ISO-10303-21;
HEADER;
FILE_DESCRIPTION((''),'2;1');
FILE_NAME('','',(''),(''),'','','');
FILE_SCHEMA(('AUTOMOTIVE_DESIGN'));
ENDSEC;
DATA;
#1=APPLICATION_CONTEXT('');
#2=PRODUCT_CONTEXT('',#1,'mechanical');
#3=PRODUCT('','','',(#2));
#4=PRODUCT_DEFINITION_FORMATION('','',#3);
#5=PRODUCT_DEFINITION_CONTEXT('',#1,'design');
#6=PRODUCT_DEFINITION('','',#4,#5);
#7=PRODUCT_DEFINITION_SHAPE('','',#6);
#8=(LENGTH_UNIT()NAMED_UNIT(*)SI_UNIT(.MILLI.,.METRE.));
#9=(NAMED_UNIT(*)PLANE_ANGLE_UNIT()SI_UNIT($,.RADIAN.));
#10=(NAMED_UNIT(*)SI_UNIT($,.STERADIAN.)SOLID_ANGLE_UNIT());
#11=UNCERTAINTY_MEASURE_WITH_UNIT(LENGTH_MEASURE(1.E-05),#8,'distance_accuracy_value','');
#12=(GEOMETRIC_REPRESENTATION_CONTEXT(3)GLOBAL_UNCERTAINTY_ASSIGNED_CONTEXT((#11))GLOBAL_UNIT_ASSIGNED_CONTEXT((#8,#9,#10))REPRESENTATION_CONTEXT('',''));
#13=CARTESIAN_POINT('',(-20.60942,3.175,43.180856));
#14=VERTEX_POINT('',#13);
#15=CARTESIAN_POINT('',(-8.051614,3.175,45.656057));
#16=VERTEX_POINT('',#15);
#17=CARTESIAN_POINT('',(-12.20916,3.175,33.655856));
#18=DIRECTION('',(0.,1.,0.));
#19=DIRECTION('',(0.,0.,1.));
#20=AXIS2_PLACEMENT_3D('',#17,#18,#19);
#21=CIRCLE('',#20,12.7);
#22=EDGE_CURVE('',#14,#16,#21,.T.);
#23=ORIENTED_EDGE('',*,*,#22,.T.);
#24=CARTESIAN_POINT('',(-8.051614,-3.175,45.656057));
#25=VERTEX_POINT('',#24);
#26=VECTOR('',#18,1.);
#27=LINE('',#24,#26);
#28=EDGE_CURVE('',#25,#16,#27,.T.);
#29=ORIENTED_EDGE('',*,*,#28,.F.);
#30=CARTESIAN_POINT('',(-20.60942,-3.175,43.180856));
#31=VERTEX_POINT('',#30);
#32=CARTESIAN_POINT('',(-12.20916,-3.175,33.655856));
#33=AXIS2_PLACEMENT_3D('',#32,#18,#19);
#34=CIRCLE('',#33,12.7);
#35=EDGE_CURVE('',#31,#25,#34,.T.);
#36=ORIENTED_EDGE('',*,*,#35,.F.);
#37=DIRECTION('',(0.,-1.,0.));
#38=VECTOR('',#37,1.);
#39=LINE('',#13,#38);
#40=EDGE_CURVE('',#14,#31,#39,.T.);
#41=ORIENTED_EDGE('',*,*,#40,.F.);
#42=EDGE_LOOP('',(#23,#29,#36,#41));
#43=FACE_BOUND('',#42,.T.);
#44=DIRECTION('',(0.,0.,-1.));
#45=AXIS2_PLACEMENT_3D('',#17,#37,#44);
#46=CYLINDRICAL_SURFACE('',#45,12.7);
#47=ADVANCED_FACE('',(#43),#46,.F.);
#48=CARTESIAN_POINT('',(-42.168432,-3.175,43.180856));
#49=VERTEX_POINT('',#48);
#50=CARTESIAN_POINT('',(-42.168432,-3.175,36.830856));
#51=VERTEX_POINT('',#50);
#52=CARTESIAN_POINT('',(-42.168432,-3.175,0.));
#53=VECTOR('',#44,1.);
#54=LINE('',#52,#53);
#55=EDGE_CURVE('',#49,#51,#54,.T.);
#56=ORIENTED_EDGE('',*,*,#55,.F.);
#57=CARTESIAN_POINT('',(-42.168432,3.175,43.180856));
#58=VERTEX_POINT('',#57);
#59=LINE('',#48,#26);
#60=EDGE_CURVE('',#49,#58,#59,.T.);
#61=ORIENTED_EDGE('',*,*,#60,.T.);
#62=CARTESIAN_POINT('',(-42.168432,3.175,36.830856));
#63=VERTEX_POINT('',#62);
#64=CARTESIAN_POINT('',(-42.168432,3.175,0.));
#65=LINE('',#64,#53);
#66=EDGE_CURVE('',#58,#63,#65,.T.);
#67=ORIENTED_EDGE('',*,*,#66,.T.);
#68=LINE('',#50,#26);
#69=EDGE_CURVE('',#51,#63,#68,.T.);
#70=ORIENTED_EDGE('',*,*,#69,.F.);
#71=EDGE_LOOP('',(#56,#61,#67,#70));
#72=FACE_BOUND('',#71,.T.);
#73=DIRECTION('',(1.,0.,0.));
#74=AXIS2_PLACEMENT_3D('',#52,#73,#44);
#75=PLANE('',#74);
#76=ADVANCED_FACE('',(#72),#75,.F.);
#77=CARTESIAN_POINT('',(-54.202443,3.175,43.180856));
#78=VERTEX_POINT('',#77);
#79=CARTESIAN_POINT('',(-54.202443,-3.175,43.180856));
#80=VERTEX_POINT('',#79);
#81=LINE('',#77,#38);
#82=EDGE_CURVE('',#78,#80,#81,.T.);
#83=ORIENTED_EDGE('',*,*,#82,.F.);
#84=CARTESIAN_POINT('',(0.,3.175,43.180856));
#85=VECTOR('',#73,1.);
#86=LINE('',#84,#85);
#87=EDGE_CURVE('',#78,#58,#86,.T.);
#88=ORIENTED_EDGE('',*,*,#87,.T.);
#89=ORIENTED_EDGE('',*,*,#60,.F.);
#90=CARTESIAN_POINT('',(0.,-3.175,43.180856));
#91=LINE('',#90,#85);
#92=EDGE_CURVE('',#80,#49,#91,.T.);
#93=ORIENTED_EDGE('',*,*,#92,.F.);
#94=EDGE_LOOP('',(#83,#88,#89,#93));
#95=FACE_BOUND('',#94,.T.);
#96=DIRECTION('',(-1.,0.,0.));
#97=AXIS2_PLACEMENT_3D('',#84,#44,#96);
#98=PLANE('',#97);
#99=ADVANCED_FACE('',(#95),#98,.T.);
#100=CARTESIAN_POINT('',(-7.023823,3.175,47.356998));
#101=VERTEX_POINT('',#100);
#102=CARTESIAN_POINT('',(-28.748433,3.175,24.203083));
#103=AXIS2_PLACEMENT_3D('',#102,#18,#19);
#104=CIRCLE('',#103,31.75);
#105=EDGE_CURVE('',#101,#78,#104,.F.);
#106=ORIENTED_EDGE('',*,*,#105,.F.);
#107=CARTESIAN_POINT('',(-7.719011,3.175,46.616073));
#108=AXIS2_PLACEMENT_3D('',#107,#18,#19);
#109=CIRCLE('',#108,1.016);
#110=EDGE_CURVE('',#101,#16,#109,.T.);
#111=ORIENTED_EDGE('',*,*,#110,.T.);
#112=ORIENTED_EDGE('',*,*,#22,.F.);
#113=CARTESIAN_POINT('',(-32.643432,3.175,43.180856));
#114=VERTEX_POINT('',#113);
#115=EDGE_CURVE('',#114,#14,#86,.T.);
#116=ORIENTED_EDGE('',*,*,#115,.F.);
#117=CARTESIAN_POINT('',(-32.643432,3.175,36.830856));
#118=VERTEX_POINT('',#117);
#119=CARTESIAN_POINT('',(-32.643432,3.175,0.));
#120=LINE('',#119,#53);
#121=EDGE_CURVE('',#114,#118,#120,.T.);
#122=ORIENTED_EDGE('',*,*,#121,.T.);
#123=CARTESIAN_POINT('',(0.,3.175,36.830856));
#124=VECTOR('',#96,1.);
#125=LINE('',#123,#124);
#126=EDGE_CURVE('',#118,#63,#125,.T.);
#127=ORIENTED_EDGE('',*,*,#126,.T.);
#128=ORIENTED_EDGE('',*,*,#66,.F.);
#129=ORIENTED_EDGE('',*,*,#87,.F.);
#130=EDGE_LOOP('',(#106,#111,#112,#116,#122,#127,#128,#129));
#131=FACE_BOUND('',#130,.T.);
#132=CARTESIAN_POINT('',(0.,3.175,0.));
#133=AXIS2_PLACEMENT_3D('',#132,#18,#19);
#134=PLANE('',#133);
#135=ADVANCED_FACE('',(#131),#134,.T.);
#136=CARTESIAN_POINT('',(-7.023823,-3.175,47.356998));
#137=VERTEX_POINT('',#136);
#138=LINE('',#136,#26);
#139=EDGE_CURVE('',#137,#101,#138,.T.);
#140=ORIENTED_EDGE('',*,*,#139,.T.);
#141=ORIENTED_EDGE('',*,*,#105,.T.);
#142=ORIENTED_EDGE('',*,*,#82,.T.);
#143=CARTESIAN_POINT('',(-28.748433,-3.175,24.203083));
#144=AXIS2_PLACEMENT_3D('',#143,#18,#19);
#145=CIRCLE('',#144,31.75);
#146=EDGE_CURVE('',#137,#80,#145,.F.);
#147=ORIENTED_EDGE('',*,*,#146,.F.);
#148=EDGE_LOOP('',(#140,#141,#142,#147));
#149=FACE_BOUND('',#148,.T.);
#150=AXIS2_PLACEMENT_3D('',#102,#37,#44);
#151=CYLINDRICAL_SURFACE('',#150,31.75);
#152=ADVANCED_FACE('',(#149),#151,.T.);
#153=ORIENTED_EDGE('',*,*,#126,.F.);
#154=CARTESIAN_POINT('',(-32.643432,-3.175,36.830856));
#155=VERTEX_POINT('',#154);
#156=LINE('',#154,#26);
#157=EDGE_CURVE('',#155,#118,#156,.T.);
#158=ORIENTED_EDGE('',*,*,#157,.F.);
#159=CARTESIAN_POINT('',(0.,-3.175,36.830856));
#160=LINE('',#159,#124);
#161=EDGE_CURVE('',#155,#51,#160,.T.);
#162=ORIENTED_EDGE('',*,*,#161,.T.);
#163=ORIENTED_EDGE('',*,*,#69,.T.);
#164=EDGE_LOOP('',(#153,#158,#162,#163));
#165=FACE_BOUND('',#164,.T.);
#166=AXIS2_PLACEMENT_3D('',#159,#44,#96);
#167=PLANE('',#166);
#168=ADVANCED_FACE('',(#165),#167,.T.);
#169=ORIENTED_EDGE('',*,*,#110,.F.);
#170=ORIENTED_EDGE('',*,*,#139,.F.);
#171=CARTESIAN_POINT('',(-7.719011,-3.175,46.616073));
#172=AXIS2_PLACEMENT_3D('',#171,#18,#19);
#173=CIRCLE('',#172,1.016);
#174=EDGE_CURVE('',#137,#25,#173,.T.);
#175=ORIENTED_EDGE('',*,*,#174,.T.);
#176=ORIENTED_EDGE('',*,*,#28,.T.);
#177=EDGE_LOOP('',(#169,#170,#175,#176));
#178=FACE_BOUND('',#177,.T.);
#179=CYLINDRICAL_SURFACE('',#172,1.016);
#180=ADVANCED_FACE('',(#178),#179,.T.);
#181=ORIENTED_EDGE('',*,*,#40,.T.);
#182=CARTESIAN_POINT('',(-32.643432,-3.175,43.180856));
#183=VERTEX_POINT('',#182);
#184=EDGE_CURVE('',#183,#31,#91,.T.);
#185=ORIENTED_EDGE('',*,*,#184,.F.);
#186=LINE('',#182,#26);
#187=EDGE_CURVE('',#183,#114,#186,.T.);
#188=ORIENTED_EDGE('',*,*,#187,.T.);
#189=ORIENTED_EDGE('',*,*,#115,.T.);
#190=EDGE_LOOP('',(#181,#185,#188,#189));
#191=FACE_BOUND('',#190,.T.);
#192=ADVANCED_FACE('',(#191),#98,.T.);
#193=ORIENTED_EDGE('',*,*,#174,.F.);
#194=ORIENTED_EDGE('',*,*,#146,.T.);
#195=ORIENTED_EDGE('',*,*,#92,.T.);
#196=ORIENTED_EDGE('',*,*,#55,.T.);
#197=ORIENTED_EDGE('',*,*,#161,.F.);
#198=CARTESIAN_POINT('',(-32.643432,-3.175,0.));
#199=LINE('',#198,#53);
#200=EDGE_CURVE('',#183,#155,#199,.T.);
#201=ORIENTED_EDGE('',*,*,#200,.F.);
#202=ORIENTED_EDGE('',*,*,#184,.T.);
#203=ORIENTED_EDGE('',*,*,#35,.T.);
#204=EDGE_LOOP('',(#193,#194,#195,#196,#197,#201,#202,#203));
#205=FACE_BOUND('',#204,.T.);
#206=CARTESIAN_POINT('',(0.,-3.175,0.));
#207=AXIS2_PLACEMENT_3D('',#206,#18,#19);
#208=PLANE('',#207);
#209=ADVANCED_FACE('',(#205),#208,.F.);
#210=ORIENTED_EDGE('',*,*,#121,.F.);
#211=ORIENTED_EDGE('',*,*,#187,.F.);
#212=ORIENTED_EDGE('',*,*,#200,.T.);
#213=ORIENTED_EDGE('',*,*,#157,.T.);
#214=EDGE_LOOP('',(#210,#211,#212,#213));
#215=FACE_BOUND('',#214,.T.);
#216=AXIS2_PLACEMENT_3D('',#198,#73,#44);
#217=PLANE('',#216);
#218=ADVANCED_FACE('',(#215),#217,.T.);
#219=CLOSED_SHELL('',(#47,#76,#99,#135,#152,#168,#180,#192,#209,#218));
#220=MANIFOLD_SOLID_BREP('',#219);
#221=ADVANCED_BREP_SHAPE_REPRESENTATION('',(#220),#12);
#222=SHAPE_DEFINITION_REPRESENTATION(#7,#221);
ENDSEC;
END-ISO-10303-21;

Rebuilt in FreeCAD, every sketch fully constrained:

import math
import FreeCAD as App
import Part
import Sketcher
from FreeCAD import Vector
Q = App.Units.Quantity

doc = App.newDocument("Part")
body = doc.addObject("PartDesign::Body", "Body")

sketch1 = body.newObject("Sketcher::SketchObject", "Sketch")
sketch1.AttachmentSupport = (doc.getObject("XZ_Plane"), [""])
sketch1.MapMode = "FlatFace"
sketch1.addGeometry(Part.ArcOfCircle(Part.Circle(Vector(-29, 24, 0), Vector(0, 0, 1), 32), math.radians(30), math.radians(143)), False)
sketch1.addGeometry(Part.ArcOfCircle(Part.Circle(Vector(-12, 34, 0), Vector(0, 0, 1), 13), math.radians(30), math.radians(131)), False)
sketch1.addGeometry(Part.LineSegment(Vector(-21, 43, 0), Vector(-54, 43, 0)), False)
sketch1.addConstraint(Sketcher.Constraint("Tangent", 0, 1, 1, 1))
sketch1.addConstraint(Sketcher.Constraint("Coincident", 1, 2, 2, 1))
sketch1.addConstraint(Sketcher.Constraint("Coincident", 2, 2, 0, 2))
sketch1.addConstraint(Sketcher.Constraint("Horizontal", 2))
sketch1.addConstraint(Sketcher.Constraint("Radius", 1, Q("0.5 in")))
sketch1.addConstraint(Sketcher.Constraint("Radius", 0, Q("1.25 in")))
sketch1.addConstraint(Sketcher.Constraint("DistanceY", 1, 3, 1, 2, Q("0.375 in")))
sketch1.addConstraint(Sketcher.Constraint("DistanceX", 2, 2, 2, 1, Q("33.593023 mm")))
sketch1.addConstraint(Sketcher.Constraint("DistanceX", 1, 3, -1, 1, Q("12.20916 mm")))
sketch1.addConstraint(Sketcher.Constraint("DistanceY", -1, 1, 0, 3, Q("24.203083 mm")))
pad1 = body.newObject("PartDesign::Pad", "Pad")
pad1.Profile = sketch1
pad1.Length = Q("0.25 in")
pad1.Midplane = True

sketch2 = body.newObject("Sketcher::SketchObject", "Sketch001")
sketch2.AttachmentSupport = (doc.getObject("XZ_Plane"), [""])
sketch2.MapMode = "FlatFace"
sketch2.AttachmentOffset = App.Placement(Vector(0, 0, -0.125 * 25.4), App.Rotation())
sketch2.addGeometry(Part.LineSegment(Vector(-42, 37, 0), Vector(-42, 43, 0)), False)
sketch2.addGeometry(Part.LineSegment(Vector(-42, 43, 0), Vector(-33, 43, 0)), False)
sketch2.addGeometry(Part.LineSegment(Vector(-33, 43, 0), Vector(-33, 37, 0)), False)
sketch2.addGeometry(Part.LineSegment(Vector(-33, 37, 0), Vector(-42, 37, 0)), False)
sketch2.addConstraint(Sketcher.Constraint("Coincident", 0, 2, 1, 1))
sketch2.addConstraint(Sketcher.Constraint("Coincident", 1, 2, 2, 1))
sketch2.addConstraint(Sketcher.Constraint("Coincident", 2, 2, 3, 1))
sketch2.addConstraint(Sketcher.Constraint("Coincident", 3, 2, 0, 1))
sketch2.addConstraint(Sketcher.Constraint("Vertical", 0))
sketch2.addConstraint(Sketcher.Constraint("Horizontal", 1))
sketch2.addConstraint(Sketcher.Constraint("Vertical", 2))
sketch2.addConstraint(Sketcher.Constraint("Horizontal", 3))
sketch2.addConstraint(Sketcher.Constraint("DistanceY", 0, 1, 0, 2, Q("0.25 in")))
sketch2.addConstraint(Sketcher.Constraint("DistanceX", 1, 1, 1, 2, Q("0.375 in")))
sketch2.addConstraint(Sketcher.Constraint("DistanceX", 0, 2, -1, 1, Q("42.168432 mm")))
sketch2.addConstraint(Sketcher.Constraint("DistanceY", -1, 1, 0, 2, Q("43.180856 mm")))
pad2 = body.newObject("PartDesign::Pad", "Pad001")
pad2.Profile = sketch2
pad2.Length = Q("0.25 in")

sketch3 = body.newObject("Sketcher::SketchObject", "Sketch002")
sketch3.AttachmentSupport = (doc.getObject("XZ_Plane"), [""])
sketch3.MapMode = "FlatFace"
sketch3.AttachmentOffset = App.Placement(Vector(0, 0, -0.125 * 25.4), App.Rotation())
sketch3.addGeometry(Part.ArcOfCircle(Part.Circle(Vector(-12.2, 33.7, 0), Vector(0, 0, 1), 12.7), math.radians(30), math.radians(71)), False)
sketch3.addGeometry(Part.ArcOfCircle(Part.Circle(Vector(-7.7, 46.6, 0), Vector(0, 0, 1), 1), math.radians(-109), math.radians(47)), False)
sketch3.addGeometry(Part.ArcOfCircle(Part.Circle(Vector(-28.7, 24.2, 0), Vector(0, 0, 1), 31.7), math.radians(29.75), math.radians(46.82)), False)
sketch3.addConstraint(Sketcher.Constraint("Tangent", 0, 2, 1, 1))
sketch3.addConstraint(Sketcher.Constraint("Tangent", 1, 2, 2, 2))
sketch3.addConstraint(Sketcher.Constraint("Tangent", 2, 1, 0, 1))
sketch3.addConstraint(Sketcher.Constraint("Radius", 0, Q("0.5 in")))
sketch3.addConstraint(Sketcher.Constraint("Radius", 1, Q("0.04 in")))
sketch3.addConstraint(Sketcher.Constraint("Radius", 2, Q("1.25 in")))
sketch3.addConstraint(Sketcher.Constraint("DistanceY", -1, 1, 1, 2, Q("47.356998 mm")))
sketch3.addConstraint(Sketcher.Constraint("DistanceY", 0, 3, 0, 2, Q("12.000201 mm")))
sketch3.addConstraint(Sketcher.Constraint("DistanceX", 0, 3, -1, 1, Q("12.20916 mm")))
pocket1 = body.newObject("PartDesign::Pocket", "Pocket")
pocket1.Profile = sketch3
pocket1.Type = "ThroughAll"
pocket1.Reversed = True

doc.recompute()
